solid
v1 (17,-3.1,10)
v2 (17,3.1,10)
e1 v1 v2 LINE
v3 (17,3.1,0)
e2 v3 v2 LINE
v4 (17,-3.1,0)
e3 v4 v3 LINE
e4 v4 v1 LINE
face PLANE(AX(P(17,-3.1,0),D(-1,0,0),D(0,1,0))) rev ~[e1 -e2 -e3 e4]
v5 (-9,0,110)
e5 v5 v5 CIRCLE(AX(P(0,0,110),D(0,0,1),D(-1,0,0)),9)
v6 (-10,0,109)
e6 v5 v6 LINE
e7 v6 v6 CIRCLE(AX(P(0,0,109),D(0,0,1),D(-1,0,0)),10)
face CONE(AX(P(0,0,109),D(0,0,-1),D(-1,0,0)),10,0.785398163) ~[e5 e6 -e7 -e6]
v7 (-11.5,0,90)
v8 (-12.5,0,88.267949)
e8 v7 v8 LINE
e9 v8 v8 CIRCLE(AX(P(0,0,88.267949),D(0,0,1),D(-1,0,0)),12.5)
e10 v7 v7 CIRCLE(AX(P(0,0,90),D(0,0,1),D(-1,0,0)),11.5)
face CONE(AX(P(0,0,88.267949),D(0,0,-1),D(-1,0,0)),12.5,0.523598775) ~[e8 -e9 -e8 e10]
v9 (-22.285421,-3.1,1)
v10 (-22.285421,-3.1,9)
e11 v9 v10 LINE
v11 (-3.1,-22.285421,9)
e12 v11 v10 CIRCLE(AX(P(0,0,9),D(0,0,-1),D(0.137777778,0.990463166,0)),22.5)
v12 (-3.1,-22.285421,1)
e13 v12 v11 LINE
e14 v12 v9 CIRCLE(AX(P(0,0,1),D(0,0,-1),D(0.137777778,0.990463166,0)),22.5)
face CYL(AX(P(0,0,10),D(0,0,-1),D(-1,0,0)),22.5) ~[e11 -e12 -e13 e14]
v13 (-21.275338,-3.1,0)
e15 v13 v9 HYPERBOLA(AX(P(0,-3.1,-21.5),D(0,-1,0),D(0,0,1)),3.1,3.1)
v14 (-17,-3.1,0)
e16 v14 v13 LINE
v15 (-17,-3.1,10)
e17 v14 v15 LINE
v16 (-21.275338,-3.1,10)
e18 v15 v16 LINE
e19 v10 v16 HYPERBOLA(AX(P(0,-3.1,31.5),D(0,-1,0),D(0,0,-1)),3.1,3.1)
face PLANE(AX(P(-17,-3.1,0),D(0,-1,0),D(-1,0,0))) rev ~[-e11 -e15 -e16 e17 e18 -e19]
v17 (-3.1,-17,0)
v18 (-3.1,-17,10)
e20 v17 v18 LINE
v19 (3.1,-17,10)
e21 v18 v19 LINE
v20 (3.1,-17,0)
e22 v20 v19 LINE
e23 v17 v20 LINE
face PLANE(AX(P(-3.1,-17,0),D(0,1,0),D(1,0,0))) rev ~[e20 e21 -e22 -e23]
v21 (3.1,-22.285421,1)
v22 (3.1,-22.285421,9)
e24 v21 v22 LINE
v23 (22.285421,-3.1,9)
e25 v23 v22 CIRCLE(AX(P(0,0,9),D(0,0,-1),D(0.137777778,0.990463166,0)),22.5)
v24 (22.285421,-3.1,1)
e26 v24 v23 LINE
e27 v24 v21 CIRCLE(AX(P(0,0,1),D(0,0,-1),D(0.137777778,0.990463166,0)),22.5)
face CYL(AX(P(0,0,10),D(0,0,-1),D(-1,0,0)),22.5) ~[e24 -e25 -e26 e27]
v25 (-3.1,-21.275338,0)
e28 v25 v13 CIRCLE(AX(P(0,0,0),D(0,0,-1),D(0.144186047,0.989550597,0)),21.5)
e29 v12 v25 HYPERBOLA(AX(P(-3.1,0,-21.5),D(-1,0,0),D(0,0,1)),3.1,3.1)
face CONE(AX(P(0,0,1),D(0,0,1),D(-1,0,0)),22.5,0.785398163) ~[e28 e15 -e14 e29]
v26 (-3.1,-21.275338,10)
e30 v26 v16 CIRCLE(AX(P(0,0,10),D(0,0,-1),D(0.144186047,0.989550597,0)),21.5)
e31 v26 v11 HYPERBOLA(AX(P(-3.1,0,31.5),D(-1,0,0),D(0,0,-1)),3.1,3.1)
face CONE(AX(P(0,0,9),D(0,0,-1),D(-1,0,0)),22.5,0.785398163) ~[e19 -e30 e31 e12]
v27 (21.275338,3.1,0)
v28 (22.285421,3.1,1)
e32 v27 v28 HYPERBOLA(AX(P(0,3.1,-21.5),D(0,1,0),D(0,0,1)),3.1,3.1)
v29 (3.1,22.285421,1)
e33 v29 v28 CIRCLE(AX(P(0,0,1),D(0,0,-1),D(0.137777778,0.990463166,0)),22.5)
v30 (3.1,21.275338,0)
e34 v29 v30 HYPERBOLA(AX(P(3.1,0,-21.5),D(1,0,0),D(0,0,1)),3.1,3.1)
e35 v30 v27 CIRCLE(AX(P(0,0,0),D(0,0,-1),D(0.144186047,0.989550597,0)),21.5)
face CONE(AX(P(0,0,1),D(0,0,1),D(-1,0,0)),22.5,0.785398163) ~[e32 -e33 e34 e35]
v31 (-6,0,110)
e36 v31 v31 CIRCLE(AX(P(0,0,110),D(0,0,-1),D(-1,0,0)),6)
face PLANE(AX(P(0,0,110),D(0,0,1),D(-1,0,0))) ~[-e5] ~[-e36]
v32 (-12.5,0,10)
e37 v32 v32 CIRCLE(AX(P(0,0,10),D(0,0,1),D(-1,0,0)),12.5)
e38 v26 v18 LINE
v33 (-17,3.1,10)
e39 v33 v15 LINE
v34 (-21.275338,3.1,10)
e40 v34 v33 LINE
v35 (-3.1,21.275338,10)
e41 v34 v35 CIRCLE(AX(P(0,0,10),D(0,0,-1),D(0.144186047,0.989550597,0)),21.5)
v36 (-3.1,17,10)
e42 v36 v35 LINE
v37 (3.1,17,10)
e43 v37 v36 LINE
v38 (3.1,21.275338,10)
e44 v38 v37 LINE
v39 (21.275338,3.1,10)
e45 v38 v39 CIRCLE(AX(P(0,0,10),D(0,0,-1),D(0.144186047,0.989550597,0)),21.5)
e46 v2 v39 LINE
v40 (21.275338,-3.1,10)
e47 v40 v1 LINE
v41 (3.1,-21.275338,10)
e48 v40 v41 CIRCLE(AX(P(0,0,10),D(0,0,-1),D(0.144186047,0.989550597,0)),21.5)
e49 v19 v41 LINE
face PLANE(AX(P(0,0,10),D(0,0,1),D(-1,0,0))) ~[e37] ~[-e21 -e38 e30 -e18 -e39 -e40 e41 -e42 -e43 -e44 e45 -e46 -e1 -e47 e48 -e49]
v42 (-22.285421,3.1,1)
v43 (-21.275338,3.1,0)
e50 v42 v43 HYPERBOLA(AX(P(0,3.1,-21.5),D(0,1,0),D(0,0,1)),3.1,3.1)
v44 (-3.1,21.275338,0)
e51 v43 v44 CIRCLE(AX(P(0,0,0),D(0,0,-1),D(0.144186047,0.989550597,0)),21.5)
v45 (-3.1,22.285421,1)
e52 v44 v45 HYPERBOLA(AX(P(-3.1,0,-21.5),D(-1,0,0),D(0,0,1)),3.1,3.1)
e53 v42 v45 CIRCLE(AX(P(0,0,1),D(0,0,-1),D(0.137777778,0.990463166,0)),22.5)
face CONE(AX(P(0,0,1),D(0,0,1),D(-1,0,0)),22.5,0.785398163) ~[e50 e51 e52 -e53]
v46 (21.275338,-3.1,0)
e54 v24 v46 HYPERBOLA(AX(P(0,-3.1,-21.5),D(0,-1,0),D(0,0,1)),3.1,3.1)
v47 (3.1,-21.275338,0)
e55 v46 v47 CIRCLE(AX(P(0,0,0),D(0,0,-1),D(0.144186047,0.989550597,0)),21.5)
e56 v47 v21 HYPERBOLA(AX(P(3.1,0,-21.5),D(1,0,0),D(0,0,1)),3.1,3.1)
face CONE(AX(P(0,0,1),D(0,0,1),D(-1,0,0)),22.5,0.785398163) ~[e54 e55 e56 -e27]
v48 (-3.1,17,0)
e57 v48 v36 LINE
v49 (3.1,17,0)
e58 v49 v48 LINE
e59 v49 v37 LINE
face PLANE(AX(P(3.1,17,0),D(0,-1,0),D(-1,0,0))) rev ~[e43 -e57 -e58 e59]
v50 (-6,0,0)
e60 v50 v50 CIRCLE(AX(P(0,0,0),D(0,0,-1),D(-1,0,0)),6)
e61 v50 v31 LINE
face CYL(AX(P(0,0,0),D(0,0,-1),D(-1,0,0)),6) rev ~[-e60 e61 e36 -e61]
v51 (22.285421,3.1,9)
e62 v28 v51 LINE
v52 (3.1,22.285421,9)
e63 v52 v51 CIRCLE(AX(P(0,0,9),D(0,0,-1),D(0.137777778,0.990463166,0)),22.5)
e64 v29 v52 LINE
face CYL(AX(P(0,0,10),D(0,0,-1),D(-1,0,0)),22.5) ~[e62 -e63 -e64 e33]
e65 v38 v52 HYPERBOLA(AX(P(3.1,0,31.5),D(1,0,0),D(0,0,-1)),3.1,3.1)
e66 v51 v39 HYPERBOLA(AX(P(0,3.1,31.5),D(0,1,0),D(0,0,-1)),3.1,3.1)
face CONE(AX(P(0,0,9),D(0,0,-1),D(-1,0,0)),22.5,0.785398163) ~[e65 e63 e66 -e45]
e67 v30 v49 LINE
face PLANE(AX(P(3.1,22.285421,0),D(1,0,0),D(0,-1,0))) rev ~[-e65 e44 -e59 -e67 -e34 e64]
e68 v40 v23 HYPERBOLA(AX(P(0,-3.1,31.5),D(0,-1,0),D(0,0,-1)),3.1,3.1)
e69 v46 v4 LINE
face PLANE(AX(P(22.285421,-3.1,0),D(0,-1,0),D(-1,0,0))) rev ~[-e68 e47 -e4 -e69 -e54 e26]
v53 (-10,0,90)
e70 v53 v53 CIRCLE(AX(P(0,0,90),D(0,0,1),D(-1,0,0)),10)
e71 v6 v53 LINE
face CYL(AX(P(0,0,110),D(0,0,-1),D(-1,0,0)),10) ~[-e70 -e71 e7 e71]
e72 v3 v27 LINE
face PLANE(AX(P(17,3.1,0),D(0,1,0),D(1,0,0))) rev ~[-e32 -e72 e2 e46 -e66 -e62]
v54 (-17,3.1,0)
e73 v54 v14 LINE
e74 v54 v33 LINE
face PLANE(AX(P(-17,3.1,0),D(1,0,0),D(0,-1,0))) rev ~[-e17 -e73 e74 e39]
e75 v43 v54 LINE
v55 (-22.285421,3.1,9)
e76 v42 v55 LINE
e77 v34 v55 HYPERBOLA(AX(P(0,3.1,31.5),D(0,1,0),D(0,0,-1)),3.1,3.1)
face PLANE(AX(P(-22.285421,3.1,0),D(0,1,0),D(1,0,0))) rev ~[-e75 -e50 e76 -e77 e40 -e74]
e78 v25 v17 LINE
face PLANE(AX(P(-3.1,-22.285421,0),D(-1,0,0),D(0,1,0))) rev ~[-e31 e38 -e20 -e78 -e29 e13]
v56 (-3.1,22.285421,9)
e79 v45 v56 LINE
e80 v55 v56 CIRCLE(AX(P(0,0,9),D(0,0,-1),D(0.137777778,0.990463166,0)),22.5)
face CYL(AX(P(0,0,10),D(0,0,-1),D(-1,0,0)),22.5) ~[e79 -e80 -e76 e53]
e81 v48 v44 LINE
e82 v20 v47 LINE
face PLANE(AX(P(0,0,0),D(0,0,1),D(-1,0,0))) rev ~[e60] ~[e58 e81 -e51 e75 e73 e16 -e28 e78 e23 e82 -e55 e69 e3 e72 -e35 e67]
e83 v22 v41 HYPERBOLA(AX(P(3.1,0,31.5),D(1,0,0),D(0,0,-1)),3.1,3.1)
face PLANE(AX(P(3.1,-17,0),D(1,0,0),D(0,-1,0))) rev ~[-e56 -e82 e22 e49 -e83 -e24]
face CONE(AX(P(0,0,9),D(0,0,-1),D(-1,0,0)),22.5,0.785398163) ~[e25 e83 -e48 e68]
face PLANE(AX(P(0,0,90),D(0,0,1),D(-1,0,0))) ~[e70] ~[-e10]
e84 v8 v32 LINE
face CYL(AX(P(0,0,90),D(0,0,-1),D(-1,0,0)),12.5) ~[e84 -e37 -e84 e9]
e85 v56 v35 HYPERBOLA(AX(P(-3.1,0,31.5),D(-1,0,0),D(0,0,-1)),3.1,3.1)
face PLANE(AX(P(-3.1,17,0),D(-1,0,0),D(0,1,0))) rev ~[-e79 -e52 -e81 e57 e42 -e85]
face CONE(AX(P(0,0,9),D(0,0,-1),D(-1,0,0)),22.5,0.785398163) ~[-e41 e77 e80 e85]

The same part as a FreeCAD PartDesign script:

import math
import FreeCAD as App
import Part
import Sketcher
from FreeCAD import Vector


def edges_at(feature, points):
    """Names of the edges that pass closest to the given points."""
    edges = feature.Shape.Edges
    near = lambda p: min(range(len(edges)), key=lambda i: edges[i].distToShape(Part.Vertex(*p))[0])
    return sorted({f"Edge{near(p) + 1}" for p in points})


def add_polygon(sketch, points):
    """Adds a closed chain of lines whose ends are joined by coincident constraints."""
    first, n = sketch.GeometryCount, len(points)
    for a, b in zip(points, points[1:] + points[:1]):
        sketch.addGeometry(Part.LineSegment(App.Vector(*a, 0), App.Vector(*b, 0)), False)
    for i in range(n):
        sketch.addConstraint(Sketcher.Constraint("Coincident", first + i, 2, first + (i + 1) % n, 1))

doc = App.newDocument("Part")
params = doc.addObject("Spreadsheet::Sheet", "Params")
for row, (alias, value) in enumerate([
    ("sketch1_width", "10 mm"),
    ("sketch1_height", "110 mm"),
    ("sketch1_height2", "80 mm"),
    ("sketch1_width2", "22.5 mm"),
    ("revolution_angle", "360 deg"),
    ("chamfer_size", "1 mm"),
    ("sketch2_diameter", "12 mm"),
    ("sketch3_radius", "22.5 mm"),
    ("sketch3_width", "6.2 mm"),
    ("chamfer2_size", "1 mm"),
    ("chamfer2_size2", "1.732051 mm"),
], start=1):
    params.set(f"A{row}", alias)
    params.set(f"B{row}", "=" + value)
    params.setAlias(f"B{row}", alias)

body = doc.addObject("PartDesign::Body", "Body")

sketch1 = doc.addObject("Sketcher::SketchObject", "Sketch")
body.addObject(sketch1)
sketch1.AttachmentSupport = (doc.YZ_Plane, [""])
sketch1.MapMode = "FlatFace"
add_polygon(sketch1, [(10, 110), (0, 110), (0, 0), (22.5, 0), (22.5, 10), (12.5, 10), (12.5, 90), (10, 90)])
sketch1.addConstraint([
    Sketcher.Constraint("Horizontal", 0),
    Sketcher.Constraint("Vertical", 1),
    Sketcher.Constraint("Horizontal", 2),
    Sketcher.Constraint("Vertical", 3),
    Sketcher.Constraint("Horizontal", 4),
    Sketcher.Constraint("Vertical", 5),
    Sketcher.Constraint("Horizontal", 6),
    Sketcher.Constraint("Vertical", 7),
    Sketcher.Constraint("Coincident", 1, 2, -1, 1),
    Sketcher.Constraint("Equal", 0, 4),
    Sketcher.Constraint("Equal", 4, 3),
    Sketcher.Constraint("DistanceX", 0, 2, 0, 1, 10.0),
    Sketcher.Constraint("DistanceY", 1, 2, 1, 1, 110.0),
    Sketcher.Constraint("DistanceY", 5, 1, 5, 2, 80.0),
    Sketcher.Constraint("DistanceX", 2, 1, 2, 2, 22.5),
])
sketch1.setExpression("Constraints[19]", "Params.sketch1_width")
sketch1.setExpression("Constraints[20]", "Params.sketch1_height")
sketch1.setExpression("Constraints[21]", "Params.sketch1_height2")
sketch1.setExpression("Constraints[22]", "Params.sketch1_width2")
revolution = doc.addObject("PartDesign::Revolution", "Revolution")
body.addObject(revolution)
revolution.Profile = sketch1
revolution.ReferenceAxis = (sketch1, ["V_Axis"])
revolution.setExpression("Angle", "Params.revolution_angle")
doc.recompute()

chamfer = doc.addObject("PartDesign::Chamfer", "Chamfer")
body.addObject(chamfer)
chamfer.Base = (revolution, edges_at(revolution, [(22.5, 0, 0), (22.5, 0, 10), (10, 0, 110)]))
chamfer.setExpression("Size", "Params.chamfer_size")

sketch2 = doc.addObject("Sketcher::SketchObject", "Sketch001")
body.addObject(sketch2)
sketch2.AttachmentSupport = (doc.XY_Plane, [""])
sketch2.MapMode = "FlatFace"
sketch2.addGeometry(Part.Circle(Vector(0, 0, 0), Vector(0, 0, 1), 6), False)
sketch2.addConstraint([
    Sketcher.Constraint("Coincident", 0, 3, -1, 1),
    Sketcher.Constraint("Diameter", 0, 12.0),
])
sketch2.setExpression("Constraints[1]", "Params.sketch2_diameter")
pocket1 = doc.addObject("PartDesign::Pocket", "Pocket")
body.addObject(pocket1)
pocket1.Profile = sketch2
pocket1.Type = "ThroughAll"
pocket1.Reversed = True

sketch3 = doc.addObject("Sketcher::SketchObject", "Sketch002")
body.addObject(sketch3)
sketch3.AttachmentSupport = (doc.XY_Plane, [""])
sketch3.MapMode = "FlatFace"
sketch3.addGeometry([
    Part.LineSegment(Vector(3.1, 22.285421, 0), Vector(3.1, 17, 0)),
    Part.LineSegment(Vector(3.1, 17, 0), Vector(-3.1, 17, 0)),
    Part.LineSegment(Vector(-3.1, 17, 0), Vector(-3.1, 22.285421, 0)),
    Part.ArcOfCircle(Part.Circle(Vector(0, 0, 0), Vector(0, 0, 1), 22.5), math.radians(82.080724), math.radians(97.919276)),
], False)
sketch3.addConstraint([
    Sketcher.Constraint("Coincident", 0, 2, 1, 1),
    Sketcher.Constraint("Coincident", 1, 2, 2, 1),
    Sketcher.Constraint("Coincident", 2, 2, 3, 2),
    Sketcher.Constraint("Coincident", 3, 1, 0, 1),
    Sketcher.Constraint("Vertical", 0),
    Sketcher.Constraint("Horizontal", 1),
    Sketcher.Constraint("Vertical", 2),
    Sketcher.Constraint("Coincident", 3, 3, -1, 1),
    Sketcher.Constraint("Horizontal", 2, 2, 3, 1),
    Sketcher.Constraint("Radius", 3, 22.5),
    Sketcher.Constraint("DistanceX", 1, 2, 1, 1, 6.2),
    Sketcher.Constraint("DistanceY", -1, 1, 0, 2, 17.0),
])
sketch3.setExpression("Constraints[9]", "Params.sketch3_radius")
sketch3.setExpression("Constraints[10]", "Params.sketch3_width")
pocket2 = doc.addObject("PartDesign::Pocket", "Pocket001")
body.addObject(pocket2)
pocket2.Profile = sketch3
pocket2.Type = "ThroughAll"
pocket2.Reversed = True
doc.recompute()

polarpattern = doc.addObject("PartDesign::PolarPattern", "PolarPattern")
body.addObject(polarpattern)
polarpattern.Originals = [pocket2]
polarpattern.Axis = (doc.Z_Axis, [""])
polarpattern.Angle = 360
polarpattern.Occurrences = 4
body.Tip = polarpattern
doc.recompute()

chamfer2 = doc.addObject("PartDesign::Chamfer", "Chamfer001")
body.addObject(chamfer2)
chamfer2.Base = (polarpattern, edges_at(polarpattern, [(12.5, 0, 90)]))
chamfer2.ChamferType = "Two distances"
chamfer2.setExpression("Size", "Params.chamfer2_size")
chamfer2.setExpression("Size2", "Params.chamfer2_size2")

doc.recompute()
